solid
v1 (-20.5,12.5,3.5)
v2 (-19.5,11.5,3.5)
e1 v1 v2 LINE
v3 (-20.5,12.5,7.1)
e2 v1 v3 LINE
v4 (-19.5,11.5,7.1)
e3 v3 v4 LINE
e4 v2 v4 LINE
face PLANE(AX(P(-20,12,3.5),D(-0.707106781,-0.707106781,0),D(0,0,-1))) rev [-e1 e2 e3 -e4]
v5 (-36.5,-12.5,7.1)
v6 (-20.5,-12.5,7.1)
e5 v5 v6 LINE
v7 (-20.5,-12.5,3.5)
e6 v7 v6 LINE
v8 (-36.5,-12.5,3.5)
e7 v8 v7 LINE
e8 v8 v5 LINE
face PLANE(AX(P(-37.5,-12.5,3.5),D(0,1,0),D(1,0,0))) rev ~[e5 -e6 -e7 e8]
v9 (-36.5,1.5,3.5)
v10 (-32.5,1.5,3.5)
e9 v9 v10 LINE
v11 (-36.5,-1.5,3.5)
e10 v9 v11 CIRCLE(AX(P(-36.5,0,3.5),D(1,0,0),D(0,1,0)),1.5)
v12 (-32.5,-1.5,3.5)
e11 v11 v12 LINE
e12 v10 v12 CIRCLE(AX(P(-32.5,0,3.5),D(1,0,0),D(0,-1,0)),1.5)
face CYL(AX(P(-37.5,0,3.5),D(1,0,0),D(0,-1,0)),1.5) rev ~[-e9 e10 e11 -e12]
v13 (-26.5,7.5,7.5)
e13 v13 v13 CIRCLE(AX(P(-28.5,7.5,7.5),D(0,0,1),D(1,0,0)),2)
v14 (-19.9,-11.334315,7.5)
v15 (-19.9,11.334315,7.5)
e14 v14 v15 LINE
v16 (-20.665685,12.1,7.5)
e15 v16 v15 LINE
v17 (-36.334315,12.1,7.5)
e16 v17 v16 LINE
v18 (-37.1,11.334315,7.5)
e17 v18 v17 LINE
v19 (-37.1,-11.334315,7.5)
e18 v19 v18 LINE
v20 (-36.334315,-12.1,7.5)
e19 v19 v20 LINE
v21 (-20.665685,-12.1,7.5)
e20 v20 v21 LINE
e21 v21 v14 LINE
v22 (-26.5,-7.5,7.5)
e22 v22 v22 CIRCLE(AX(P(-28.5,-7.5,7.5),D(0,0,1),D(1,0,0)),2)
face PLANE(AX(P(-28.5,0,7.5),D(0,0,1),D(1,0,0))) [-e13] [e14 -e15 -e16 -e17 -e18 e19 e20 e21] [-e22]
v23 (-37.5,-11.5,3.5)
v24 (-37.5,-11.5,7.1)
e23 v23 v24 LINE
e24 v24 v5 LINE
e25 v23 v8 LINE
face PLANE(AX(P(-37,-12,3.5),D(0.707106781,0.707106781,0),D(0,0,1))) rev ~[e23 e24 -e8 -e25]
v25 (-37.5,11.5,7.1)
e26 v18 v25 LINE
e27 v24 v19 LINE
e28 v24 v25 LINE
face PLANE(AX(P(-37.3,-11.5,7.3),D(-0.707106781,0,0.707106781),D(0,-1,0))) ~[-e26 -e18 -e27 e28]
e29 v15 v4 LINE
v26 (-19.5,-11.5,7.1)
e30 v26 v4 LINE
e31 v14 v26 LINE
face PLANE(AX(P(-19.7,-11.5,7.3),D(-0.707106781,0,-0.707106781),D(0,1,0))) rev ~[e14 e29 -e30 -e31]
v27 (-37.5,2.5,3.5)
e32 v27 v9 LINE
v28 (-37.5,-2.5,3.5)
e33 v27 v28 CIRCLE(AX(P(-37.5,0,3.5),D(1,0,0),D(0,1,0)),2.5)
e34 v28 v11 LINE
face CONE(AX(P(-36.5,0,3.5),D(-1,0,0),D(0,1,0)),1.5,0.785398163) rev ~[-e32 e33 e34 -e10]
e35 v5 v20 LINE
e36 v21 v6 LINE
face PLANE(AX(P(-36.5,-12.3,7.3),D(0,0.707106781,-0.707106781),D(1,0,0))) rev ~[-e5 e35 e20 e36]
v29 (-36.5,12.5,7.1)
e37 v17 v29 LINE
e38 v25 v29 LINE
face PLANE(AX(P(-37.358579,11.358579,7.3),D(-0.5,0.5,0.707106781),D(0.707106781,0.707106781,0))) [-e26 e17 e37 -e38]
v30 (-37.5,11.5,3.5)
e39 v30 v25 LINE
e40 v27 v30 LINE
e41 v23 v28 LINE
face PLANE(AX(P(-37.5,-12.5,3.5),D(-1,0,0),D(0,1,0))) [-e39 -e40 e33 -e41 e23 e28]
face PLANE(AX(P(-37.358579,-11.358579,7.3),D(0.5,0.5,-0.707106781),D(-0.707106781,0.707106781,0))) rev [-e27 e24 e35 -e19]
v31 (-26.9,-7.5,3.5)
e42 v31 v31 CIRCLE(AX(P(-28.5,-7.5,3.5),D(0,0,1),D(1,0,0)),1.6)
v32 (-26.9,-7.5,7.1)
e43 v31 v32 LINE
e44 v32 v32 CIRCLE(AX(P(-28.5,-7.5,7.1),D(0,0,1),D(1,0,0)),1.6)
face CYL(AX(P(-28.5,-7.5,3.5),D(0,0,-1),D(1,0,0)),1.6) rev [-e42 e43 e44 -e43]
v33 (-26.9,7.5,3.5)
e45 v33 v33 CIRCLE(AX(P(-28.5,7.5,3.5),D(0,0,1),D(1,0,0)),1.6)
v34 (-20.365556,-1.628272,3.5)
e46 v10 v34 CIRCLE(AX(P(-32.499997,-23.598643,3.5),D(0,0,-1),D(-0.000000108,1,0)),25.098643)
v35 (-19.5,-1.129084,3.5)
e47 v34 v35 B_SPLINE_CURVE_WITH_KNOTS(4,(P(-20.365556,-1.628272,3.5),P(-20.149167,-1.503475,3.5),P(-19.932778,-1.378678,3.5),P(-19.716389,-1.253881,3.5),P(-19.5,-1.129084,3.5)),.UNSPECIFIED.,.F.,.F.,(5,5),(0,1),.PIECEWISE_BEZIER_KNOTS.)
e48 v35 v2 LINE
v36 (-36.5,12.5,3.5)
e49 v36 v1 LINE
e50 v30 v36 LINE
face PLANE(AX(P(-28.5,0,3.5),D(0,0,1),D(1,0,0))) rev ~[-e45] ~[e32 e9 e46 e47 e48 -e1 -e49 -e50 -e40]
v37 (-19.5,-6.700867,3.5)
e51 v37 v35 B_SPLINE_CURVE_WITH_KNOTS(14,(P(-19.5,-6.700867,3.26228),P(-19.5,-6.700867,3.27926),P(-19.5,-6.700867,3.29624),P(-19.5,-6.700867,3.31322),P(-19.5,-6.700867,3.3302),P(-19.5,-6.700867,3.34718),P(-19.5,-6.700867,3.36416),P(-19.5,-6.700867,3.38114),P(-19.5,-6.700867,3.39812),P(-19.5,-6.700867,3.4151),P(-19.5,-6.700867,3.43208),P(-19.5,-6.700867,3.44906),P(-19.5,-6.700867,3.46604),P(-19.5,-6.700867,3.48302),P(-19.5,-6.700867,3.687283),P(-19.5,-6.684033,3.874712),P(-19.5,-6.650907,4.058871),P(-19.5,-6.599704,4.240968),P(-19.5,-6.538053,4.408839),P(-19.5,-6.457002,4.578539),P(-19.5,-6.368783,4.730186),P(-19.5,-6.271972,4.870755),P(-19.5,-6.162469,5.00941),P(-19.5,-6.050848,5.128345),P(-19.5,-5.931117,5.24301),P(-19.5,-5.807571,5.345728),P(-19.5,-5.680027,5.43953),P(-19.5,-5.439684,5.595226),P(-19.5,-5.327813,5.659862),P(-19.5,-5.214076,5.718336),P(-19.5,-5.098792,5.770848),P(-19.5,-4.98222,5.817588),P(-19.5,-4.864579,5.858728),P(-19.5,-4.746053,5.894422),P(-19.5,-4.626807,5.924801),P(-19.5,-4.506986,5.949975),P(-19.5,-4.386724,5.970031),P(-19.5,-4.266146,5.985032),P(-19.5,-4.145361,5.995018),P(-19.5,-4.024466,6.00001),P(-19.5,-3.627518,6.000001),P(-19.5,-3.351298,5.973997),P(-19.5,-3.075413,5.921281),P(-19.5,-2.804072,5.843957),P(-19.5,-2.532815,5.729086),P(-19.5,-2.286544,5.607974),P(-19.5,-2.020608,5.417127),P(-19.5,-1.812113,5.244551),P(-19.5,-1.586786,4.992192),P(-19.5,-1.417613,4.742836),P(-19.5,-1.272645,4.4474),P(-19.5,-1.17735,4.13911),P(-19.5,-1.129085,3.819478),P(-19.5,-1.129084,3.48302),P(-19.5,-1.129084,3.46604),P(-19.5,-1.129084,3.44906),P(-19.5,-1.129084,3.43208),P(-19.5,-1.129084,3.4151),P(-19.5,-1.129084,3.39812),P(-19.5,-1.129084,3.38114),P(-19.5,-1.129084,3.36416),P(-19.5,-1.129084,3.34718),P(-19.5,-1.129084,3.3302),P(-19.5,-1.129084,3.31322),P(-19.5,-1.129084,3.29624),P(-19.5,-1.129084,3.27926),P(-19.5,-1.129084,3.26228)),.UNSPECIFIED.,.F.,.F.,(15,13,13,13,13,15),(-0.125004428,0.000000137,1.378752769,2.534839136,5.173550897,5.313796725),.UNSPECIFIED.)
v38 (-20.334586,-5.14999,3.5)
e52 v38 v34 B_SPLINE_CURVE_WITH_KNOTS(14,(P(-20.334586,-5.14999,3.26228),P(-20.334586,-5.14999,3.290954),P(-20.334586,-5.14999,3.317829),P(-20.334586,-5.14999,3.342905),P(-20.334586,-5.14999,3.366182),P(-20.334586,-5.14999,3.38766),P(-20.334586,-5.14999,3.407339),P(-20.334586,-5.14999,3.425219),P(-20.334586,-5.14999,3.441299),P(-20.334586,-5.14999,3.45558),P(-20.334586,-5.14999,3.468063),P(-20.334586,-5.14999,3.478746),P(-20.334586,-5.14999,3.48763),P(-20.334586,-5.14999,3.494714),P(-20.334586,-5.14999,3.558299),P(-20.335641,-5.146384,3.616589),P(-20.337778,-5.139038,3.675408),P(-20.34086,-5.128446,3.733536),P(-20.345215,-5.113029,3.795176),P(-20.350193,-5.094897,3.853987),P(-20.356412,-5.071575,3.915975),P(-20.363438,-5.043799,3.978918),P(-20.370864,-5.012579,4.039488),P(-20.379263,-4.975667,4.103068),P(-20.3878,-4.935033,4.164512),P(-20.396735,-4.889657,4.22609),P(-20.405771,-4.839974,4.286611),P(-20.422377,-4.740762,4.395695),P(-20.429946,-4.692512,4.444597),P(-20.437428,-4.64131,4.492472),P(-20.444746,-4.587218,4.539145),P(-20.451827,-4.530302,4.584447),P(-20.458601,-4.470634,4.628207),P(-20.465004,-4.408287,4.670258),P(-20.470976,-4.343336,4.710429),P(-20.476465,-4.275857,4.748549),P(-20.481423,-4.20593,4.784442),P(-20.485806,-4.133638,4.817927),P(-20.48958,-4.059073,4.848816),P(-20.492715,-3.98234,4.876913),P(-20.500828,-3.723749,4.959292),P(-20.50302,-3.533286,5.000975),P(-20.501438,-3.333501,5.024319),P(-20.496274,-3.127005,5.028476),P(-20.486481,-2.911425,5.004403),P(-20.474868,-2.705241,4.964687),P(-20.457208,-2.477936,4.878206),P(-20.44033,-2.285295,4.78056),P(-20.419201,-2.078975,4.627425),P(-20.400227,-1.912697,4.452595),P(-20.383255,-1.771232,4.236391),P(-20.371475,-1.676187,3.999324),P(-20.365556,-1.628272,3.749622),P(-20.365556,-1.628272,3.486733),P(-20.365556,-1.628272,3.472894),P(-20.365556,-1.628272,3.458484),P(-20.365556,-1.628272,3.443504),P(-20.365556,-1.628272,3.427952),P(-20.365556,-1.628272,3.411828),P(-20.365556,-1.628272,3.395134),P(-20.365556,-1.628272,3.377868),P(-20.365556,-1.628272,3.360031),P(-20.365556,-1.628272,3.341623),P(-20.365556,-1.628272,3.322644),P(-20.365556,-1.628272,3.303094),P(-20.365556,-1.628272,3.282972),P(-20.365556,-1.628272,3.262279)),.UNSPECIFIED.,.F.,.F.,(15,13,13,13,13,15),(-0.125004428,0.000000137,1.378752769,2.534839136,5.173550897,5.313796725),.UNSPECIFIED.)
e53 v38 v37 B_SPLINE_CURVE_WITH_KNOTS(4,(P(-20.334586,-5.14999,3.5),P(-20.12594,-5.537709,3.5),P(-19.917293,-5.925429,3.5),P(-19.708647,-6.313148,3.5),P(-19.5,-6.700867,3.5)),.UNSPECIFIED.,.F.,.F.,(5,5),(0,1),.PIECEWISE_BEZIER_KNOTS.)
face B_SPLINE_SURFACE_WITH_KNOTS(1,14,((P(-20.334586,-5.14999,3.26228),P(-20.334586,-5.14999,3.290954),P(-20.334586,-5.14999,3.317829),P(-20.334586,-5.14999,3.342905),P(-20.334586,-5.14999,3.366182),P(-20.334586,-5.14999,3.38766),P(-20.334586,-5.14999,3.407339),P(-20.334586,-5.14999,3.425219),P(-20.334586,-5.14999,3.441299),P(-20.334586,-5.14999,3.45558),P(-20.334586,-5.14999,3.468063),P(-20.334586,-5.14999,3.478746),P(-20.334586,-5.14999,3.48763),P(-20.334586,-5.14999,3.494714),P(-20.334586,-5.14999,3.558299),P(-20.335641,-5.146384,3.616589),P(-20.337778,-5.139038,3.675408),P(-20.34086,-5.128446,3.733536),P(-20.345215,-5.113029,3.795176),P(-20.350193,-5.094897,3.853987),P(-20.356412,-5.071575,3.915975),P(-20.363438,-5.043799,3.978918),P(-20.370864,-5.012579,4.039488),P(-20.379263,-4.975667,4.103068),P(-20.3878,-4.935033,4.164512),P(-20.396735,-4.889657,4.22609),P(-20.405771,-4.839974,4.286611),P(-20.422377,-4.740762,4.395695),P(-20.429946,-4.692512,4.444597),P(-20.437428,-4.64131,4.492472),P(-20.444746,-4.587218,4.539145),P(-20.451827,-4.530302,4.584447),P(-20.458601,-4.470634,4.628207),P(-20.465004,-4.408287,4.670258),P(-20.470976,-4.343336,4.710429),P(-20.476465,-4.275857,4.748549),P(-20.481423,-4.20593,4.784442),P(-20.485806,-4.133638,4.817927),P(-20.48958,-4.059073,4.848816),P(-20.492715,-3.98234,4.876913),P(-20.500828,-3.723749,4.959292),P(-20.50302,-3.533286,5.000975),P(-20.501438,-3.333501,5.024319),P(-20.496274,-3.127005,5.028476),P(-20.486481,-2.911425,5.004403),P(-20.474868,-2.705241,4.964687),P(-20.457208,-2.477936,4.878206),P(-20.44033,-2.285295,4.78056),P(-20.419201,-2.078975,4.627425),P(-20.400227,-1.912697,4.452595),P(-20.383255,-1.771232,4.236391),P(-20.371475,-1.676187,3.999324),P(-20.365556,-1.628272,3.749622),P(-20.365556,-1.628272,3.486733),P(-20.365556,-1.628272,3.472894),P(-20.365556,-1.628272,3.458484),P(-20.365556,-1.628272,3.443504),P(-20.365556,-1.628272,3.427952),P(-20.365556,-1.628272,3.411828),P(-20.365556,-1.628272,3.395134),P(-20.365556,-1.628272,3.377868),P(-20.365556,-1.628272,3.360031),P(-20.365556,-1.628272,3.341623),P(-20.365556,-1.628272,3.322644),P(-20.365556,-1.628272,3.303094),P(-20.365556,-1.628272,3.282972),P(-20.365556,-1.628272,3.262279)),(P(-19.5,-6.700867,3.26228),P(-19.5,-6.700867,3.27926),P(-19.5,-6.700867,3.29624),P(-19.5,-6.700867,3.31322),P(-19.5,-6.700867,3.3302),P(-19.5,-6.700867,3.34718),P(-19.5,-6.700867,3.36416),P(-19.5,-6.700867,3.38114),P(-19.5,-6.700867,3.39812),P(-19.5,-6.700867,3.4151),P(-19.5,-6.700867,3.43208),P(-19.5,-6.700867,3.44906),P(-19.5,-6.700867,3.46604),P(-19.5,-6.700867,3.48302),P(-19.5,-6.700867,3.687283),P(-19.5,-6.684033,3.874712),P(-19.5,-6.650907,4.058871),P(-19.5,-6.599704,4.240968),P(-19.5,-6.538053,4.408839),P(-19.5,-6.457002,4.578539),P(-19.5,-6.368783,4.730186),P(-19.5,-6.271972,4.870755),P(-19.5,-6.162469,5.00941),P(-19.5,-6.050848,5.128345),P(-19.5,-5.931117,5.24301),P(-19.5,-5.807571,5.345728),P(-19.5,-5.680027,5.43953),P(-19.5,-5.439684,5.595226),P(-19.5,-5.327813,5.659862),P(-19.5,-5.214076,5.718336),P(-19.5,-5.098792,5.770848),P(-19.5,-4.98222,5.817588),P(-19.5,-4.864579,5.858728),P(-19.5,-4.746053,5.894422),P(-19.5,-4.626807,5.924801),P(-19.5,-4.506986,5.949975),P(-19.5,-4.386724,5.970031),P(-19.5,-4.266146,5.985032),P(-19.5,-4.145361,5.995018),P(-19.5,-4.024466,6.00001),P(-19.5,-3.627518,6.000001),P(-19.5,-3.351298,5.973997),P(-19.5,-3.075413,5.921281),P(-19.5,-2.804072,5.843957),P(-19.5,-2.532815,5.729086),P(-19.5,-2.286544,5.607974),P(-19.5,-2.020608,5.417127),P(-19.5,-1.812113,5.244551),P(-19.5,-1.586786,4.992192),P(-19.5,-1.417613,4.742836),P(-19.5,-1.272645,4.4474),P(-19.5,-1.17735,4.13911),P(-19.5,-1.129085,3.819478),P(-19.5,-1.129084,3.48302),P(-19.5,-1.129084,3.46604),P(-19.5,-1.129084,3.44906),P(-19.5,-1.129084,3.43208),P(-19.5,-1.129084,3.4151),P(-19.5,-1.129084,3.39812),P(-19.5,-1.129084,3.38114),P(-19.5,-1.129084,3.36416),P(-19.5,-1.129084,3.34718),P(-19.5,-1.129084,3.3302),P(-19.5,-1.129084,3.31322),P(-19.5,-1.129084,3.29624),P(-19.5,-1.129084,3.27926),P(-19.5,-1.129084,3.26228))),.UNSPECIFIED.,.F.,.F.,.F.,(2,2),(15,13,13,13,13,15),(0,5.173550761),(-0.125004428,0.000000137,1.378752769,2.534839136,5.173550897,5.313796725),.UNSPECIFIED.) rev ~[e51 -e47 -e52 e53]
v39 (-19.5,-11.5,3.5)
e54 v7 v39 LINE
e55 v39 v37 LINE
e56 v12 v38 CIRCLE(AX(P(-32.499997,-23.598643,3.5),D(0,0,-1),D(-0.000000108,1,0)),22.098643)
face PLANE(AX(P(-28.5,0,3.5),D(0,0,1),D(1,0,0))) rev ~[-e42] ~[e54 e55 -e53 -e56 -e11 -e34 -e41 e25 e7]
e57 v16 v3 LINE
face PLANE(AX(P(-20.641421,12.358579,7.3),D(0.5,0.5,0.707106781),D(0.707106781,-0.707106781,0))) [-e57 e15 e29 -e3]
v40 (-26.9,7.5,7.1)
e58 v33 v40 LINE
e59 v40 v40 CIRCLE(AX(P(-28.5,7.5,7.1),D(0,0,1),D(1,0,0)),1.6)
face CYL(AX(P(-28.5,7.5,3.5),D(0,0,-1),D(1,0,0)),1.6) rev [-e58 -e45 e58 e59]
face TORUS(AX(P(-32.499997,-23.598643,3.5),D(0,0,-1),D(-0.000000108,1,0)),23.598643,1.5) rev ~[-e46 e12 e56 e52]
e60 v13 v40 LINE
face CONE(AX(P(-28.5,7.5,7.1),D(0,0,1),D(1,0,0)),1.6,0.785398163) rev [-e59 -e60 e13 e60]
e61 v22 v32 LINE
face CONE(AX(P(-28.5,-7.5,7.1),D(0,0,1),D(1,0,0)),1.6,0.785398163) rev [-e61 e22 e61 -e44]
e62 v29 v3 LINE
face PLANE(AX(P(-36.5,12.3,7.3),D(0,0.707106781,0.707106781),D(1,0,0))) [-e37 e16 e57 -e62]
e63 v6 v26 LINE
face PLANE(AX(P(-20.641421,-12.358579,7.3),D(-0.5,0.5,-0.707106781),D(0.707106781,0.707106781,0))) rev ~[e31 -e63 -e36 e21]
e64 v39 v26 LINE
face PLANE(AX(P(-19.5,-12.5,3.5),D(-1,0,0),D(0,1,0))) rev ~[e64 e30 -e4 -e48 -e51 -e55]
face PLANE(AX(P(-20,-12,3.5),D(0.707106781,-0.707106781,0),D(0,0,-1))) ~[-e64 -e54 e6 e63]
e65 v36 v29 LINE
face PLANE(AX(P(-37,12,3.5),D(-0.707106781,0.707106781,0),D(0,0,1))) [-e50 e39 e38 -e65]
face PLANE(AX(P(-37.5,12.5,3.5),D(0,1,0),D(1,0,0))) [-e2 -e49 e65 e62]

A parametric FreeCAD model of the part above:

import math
import FreeCAD as App
import Part
import Sketcher

V = App.Vector
Q = App.Units.Quantity


def edges_at(feature, points):
    """Names of the edges that pass closest to the given points."""
    edges = feature.Shape.Edges
    near = lambda p: min(range(len(edges)), key=lambda i: edges[i].distToShape(Part.Vertex(*p))[0])
    return sorted({f"Edge{near(p) + 1}" for p in points})


def add_polygon(sketch, points):
    """Adds a closed chain of lines whose ends are joined by coincident constraints."""
    first, n = sketch.GeometryCount, len(points)
    for a, b in zip(points, points[1:] + points[:1]):
        sketch.addGeometry(Part.LineSegment(App.Vector(*a, 0), App.Vector(*b, 0)), False)
    for i in range(n):
        sketch.addConstraint(Sketcher.Constraint("Coincident", first + i, 2, first + (i + 1) % n, 1))

doc = App.newDocument("Part")
params = doc.addObject("Spreadsheet::Sheet", "Params")
for row, (alias, value) in enumerate([
    ("sketch1_diameter", "3.2 mm"),
    ("sketch1_width", "18 mm"),
    ("sketch1_height", "25 mm"),
    ("pad1_length", "4 mm"),
    ("sketch2_diameter", "3 mm"),
    ("sketch3_width", "5 mm"),
    ("chamfer_size", "1 mm"),
    ("chamfer2_size", "1 mm"),
    ("chamfer3_size", "0.4 mm"),
], start=1):
    params.set(f"A{row}", alias)
    params.set(f"B{row}", "=" + value)
    params.setAlias(f"B{row}", alias)

body = doc.addObject("PartDesign::Body", "Body")

# Sketch on XY plane
sketch1 = body.newObject("Sketcher::SketchObject", "Sketch")
sketch1.AttachmentSupport = (doc.getObject("XY_Plane"), [""])
sketch1.MapMode = "FlatFace"
add_polygon(sketch1, [(-37.5, 12.5), (-37.5, -12.5), (-19.5, -12.5), (-19.5, 12.5)])  # lines 0-3
sketch1.addGeometry(Part.Circle(V(-28.5, -7.5, 0), V(0, 0, 1), 1.6), False)  # 4
sketch1.addGeometry(Part.Circle(V(-28.5, 7.5, 0), V(0, 0, 1), 1.6), False)  # 5
sketch1.addConstraint(Sketcher.Constraint("Vertical", 0))
sketch1.addConstraint(Sketcher.Constraint("Horizontal", 1))
sketch1.addConstraint(Sketcher.Constraint("Vertical", 2))
sketch1.addConstraint(Sketcher.Constraint("Horizontal", 3))
sketch1.addConstraint(Sketcher.Constraint("Equal", 4, 5))
sketch1.addConstraint(Sketcher.Constraint("Symmetric", 4, 3, 5, 3, -1))
sketch1.addConstraint(Sketcher.Constraint("Diameter", 4, Q("3.2 mm")))
sketch1.addConstraint(Sketcher.Constraint("DistanceX", 1, 1, 1, 2, Q("18 mm")))
sketch1.addConstraint(Sketcher.Constraint("DistanceY", 0, 2, 0, 1, Q("25 mm")))
sketch1.addConstraint(Sketcher.Constraint("DistanceY", 4, 3, 5, 3, Q("15 mm")))
sketch1.addConstraint(Sketcher.Constraint("DistanceX", 0, 2, 4, 3, Q("9 mm")))
sketch1.addConstraint(Sketcher.Constraint("DistanceY", 0, 2, 4, 3, Q("5 mm")))
sketch1.addConstraint(Sketcher.Constraint("DistanceX", 4, 3, -1, 1, Q("28.5 mm")))
sketch1.setExpression("Constraints[10]", "Params.sketch1_diameter")
sketch1.setExpression("Constraints[11]", "Params.sketch1_width")
sketch1.setExpression("Constraints[12]", "Params.sketch1_height")
pad1 = body.newObject("PartDesign::Pad", "Pad")
pad1.Profile = sketch1
pad1.setExpression("Length", "Params.pad1_length")

# Sketch on YZ plane
sketch2 = body.newObject("Sketcher::SketchObject", "Sketch001")
sketch2.AttachmentSupport = (doc.getObject("YZ_Plane"), [""])
sketch2.MapMode = "FlatFace"
sketch2.AttachmentOffset = App.Placement(V(0, 0, -37.5), App.Rotation())
sketch2.addGeometry(Part.Circle(V(0, 0, 0), V(0, 0, 1), 1.5), False)
sketch2.addConstraint(Sketcher.Constraint("Coincident", 0, 3, -1, 1))
sketch2.addConstraint(Sketcher.Constraint("Diameter", 0, Q("3 mm")))
sketch2.setExpression("Constraints[1]", "Params.sketch2_diameter")

# Sketch on XY plane
sketch3 = body.newObject("Sketcher::SketchObject", "Sketch002")
sketch3.AttachmentSupport = (doc.getObject("XY_Plane"), [""])
sketch3.MapMode = "FlatFace"
sketch3.addGeometry(Part.LineSegment(V(-38, 0, 0), V(-32, 0, 0)), False)
sketch3.addGeometry(Part.ArcOfCircle(Part.Circle(V(-32, -24, 0), V(0, 0, 1), 24), math.radians(57), math.radians(90)), False)
sketch3.addGeometry(Part.LineSegment(V(-20, -4, 0), V(0, -17, 0)), False)
sketch3.addConstraint(Sketcher.Constraint("Tangent", 0, 2, 1, 2))
sketch3.addConstraint(Sketcher.Constraint("Tangent", 1, 1, 2, 1))
sketch3.addConstraint(Sketcher.Constraint("Horizontal", 0))
sketch3.addConstraint(Sketcher.Constraint("PointOnObject", 0, 1, -1))
sketch3.addConstraint(Sketcher.Constraint("PointOnObject", 2, 2, -2))
sketch3.addConstraint(Sketcher.Constraint("DistanceX", 0, 1, 0, 2, Q("5 mm")))
sketch3.addConstraint(Sketcher.Constraint("DistanceX", 0, 2, 1, 1, Q("13 mm")))
sketch3.addConstraint(Sketcher.Constraint("DistanceX", 0, 1, -1, 1, Q("37.5 mm")))
sketch3.addConstraint(Sketcher.Constraint("Radius", 1, Q("23.598643 mm")))
sketch3.setExpression("Constraints[5]", "Params.sketch3_width")
doc.recompute()

subtractivepipe = body.newObject("PartDesign::SubtractivePipe", "SubtractivePipe")
subtractivepipe.Profile = sketch2
subtractivepipe.Spine = (sketch3, ["Edge1", "Edge2", "Edge3"])
doc.recompute()

chamfer = body.newObject("PartDesign::Chamfer", "Chamfer")
chamfer.Base = (subtractivepipe, edges_at(subtractivepipe, [(-37.5, 0, 1.5), (-19.5, -2.7, 1.106)]))
chamfer.setExpression("Size", "Params.chamfer_size")
doc.recompute()

chamfer2 = body.newObject("PartDesign::Chamfer", "Chamfer001")
chamfer2.Base = (chamfer, edges_at(chamfer, [
    (-37.5, -12.5, 2),
    (-19.5, -12.5, 2),
    (-19.5, 12.5, 2),
    (-37.5, 12.5, 2),
]))
chamfer2.setExpression("Size", "Params.chamfer2_size")
doc.recompute()

chamfer3 = body.newObject("PartDesign::Chamfer", "Chamfer002")
chamfer3.Base = (chamfer2, edges_at(chamfer2, [
    (-28.5, 12.5, 4),
    (-37, 12, 4),
    (-20, 12, 4),
    (-37.5, 0, 4),
    (-19.5, 0, 4),
    (-37, -12, 4),
    (-20, -12, 4),
    (-28.5, -12.5, 4),
    (-30.1, 7.5, 4),
    (-30.1, -7.5, 4),
]))
chamfer3.setExpression("Size", "Params.chamfer3_size")
body2 = doc.addObject("PartDesign::Body", "Body001")
doc.recompute()

body.Placement = App.Placement(V(0, 0, 3.5), App.Rotation(V(0, 0, 1), 0))
boolean = body2.newObject("PartDesign::Boolean", "Boolean")
boolean.Type = "Fuse"
boolean.addObjects([body])

doc.recompute()
